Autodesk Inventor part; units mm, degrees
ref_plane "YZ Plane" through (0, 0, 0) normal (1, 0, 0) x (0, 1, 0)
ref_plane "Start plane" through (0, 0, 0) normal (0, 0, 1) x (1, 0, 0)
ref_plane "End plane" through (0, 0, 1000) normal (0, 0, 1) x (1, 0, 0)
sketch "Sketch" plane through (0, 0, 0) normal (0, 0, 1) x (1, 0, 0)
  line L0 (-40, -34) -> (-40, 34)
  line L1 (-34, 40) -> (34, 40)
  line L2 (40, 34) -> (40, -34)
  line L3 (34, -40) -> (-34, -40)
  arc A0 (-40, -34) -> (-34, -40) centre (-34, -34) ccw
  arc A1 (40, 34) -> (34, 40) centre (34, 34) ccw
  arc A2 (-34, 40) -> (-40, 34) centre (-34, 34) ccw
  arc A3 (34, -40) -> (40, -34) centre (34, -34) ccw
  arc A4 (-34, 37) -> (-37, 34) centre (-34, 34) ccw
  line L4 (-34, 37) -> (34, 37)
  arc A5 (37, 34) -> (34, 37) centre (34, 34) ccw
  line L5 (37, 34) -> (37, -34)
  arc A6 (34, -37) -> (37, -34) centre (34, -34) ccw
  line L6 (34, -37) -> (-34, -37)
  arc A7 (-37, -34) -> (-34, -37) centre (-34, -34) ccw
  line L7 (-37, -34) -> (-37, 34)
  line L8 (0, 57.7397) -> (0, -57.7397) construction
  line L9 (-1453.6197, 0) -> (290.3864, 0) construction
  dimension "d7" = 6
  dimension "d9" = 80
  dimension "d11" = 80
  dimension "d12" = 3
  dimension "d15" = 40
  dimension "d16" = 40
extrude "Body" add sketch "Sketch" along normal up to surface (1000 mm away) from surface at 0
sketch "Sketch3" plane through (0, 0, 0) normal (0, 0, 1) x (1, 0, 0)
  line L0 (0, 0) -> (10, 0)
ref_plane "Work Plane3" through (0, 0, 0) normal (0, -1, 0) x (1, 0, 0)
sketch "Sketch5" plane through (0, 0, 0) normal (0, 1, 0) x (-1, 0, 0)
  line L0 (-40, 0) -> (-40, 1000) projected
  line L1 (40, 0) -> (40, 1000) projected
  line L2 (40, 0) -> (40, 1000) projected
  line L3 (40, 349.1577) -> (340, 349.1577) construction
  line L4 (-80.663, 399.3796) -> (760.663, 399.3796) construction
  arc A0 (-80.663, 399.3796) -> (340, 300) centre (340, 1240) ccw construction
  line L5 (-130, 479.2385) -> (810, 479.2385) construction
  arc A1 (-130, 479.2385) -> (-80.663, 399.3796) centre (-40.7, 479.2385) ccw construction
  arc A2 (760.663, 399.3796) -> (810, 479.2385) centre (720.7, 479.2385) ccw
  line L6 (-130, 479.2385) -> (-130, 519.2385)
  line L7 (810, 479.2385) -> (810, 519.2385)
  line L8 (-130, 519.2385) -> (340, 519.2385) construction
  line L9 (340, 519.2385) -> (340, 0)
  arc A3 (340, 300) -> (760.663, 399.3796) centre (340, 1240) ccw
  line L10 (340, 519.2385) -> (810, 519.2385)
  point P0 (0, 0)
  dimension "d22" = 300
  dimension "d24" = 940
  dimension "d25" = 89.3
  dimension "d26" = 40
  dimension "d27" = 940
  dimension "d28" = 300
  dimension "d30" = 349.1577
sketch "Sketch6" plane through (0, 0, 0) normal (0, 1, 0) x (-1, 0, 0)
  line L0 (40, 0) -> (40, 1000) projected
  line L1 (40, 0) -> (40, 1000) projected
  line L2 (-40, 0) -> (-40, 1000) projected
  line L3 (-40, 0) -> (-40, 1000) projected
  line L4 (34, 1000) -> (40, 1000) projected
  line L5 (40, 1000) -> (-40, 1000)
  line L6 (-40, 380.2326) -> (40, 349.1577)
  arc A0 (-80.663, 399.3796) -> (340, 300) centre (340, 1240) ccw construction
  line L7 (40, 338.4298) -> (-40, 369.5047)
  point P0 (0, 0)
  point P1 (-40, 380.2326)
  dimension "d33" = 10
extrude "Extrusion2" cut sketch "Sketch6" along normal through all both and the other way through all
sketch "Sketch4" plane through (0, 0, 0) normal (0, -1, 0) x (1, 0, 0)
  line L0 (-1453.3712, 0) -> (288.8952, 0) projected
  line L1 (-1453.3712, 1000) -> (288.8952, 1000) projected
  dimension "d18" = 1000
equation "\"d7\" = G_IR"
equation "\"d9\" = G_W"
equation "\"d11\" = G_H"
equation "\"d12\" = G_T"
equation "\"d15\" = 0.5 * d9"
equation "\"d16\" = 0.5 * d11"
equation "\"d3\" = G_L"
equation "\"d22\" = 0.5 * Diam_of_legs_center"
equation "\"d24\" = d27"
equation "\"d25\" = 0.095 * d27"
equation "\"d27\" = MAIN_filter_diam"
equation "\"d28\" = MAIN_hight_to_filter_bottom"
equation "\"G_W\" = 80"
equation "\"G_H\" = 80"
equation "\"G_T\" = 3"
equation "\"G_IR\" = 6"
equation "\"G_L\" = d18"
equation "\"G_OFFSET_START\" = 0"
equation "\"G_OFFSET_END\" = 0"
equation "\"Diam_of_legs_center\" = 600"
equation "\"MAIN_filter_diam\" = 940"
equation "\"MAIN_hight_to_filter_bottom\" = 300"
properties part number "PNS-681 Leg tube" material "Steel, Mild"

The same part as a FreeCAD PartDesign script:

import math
import FreeCAD as App
import Part
import Sketcher
from FreeCAD import Vector
Q = App.Units.Quantity


def add_polygon(sketch, points):
    """Adds a closed chain of lines whose ends are joined by coincident constraints."""
    first, n = sketch.GeometryCount, len(points)
    for a, b in zip(points, points[1:] + points[:1]):
        sketch.addGeometry(Part.LineSegment(App.Vector(*a, 0), App.Vector(*b, 0)), False)
    for i in range(n):
        sketch.addConstraint(Sketcher.Constraint("Coincident", first + i, 2, first + (i + 1) % n, 1))

doc = App.newDocument("Part")
body = doc.addObject("PartDesign::Body", "Body")

sketch1 = body.newObject("Sketcher::SketchObject", "Sketch")
sketch1.AttachmentSupport = (doc.getObject("XY_Plane"), [""])
sketch1.MapMode = "FlatFace"
sketch1.addGeometry([
    Part.LineSegment(Vector(-40, 34, 0), Vector(-40, -34, 0)),
    Part.ArcOfCircle(Part.Circle(Vector(-34, -34, 0), Vector(0, 0, 1), 6), math.radians(180), math.radians(270)),
    Part.LineSegment(Vector(-34, -40, 0), Vector(34, -40, 0)),
    Part.ArcOfCircle(Part.Circle(Vector(34, -34, 0), Vector(0, 0, 1), 6), math.radians(-90), math.radians(0)),
    Part.LineSegment(Vector(40, -34, 0), Vector(40, 34, 0)),
    Part.ArcOfCircle(Part.Circle(Vector(34, 34, 0), Vector(0, 0, 1), 6), math.radians(0), math.radians(90)),
    Part.LineSegment(Vector(34, 40, 0), Vector(-34, 40, 0)),
    Part.ArcOfCircle(Part.Circle(Vector(-34, 34, 0), Vector(0, 0, 1), 6), math.radians(90), math.radians(180)),
    Part.ArcOfCircle(Part.Circle(Vector(-34, 34, 0), Vector(0, 0, 1), 3), math.radians(90), math.radians(180)),
    Part.LineSegment(Vector(-34, 37, 0), Vector(34, 37, 0)),
    Part.ArcOfCircle(Part.Circle(Vector(34, 34, 0), Vector(0, 0, 1), 3), math.radians(0), math.radians(90)),
    Part.LineSegment(Vector(37, 34, 0), Vector(37, -34, 0)),
    Part.ArcOfCircle(Part.Circle(Vector(34, -34, 0), Vector(0, 0, 1), 3), math.radians(-90), math.radians(0)),
    Part.LineSegment(Vector(34, -37, 0), Vector(-34, -37, 0)),
    Part.ArcOfCircle(Part.Circle(Vector(-34, -34, 0), Vector(0, 0, 1), 3), math.radians(180), math.radians(270)),
    Part.LineSegment(Vector(-37, -34, 0), Vector(-37, 34, 0)),
], False)
sketch1.addConstraint([
    Sketcher.Constraint("Tangent", 0, 2, 1, 1),
    Sketcher.Constraint("Tangent", 1, 2, 2, 1),
    Sketcher.Constraint("Tangent", 2, 2, 3, 1),
    Sketcher.Constraint("Tangent", 3, 2, 4, 1),
    Sketcher.Constraint("Tangent", 4, 2, 5, 1),
    Sketcher.Constraint("Tangent", 5, 2, 6, 1),
    Sketcher.Constraint("Tangent", 6, 2, 7, 1),
    Sketcher.Constraint("Tangent", 7, 2, 0, 1),
    Sketcher.Constraint("Tangent", 8, 1, 9, 1),
    Sketcher.Constraint("Tangent", 9, 2, 10, 2),
    Sketcher.Constraint("Tangent", 10, 1, 11, 1),
    Sketcher.Constraint("Tangent", 11, 2, 12, 2),
    Sketcher.Constraint("Tangent", 12, 1, 13, 1),
    Sketcher.Constraint("Tangent", 13, 2, 14, 2),
    Sketcher.Constraint("Tangent", 14, 1, 15, 1),
    Sketcher.Constraint("Tangent", 15, 2, 8, 2),
    Sketcher.Constraint("Vertical", 0),
    Sketcher.Constraint("Horizontal", 2),
    Sketcher.Constraint("Vertical", 4),
    Sketcher.Constraint("Horizontal", 6),
    Sketcher.Constraint("Horizontal", 9),
    Sketcher.Constraint("Vertical", 11),
    Sketcher.Constraint("Horizontal", 13),
    Sketcher.Constraint("Vertical", 15),
    Sketcher.Constraint("Coincident", 8, 3, 7, 3),
    Sketcher.Constraint("Coincident", 10, 3, 5, 3),
    Sketcher.Constraint("Coincident", 12, 3, 3, 3),
    Sketcher.Constraint("Equal", 1, 3),
    Sketcher.Constraint("Equal", 3, 5),
    Sketcher.Constraint("Equal", 5, 7),
    Sketcher.Constraint("Equal", 12, 14),
    Sketcher.Constraint("Symmetric", 1, 3, 5, 3, -1, 1),
    Sketcher.Constraint("Equal", 13, 0),
    Sketcher.Constraint("Radius", 1, Q("6 mm")),
    Sketcher.Constraint("Radius", 8, Q("3 mm")),
    Sketcher.Constraint("DistanceX", 0, 2, -1, 1, Q("40 mm")),
])
pad1 = body.newObject("PartDesign::Pad", "Pad")
pad1.Profile = sketch1
pad1.Length = 1000

sketch2 = body.newObject("Sketcher::SketchObject", "Sketch001")
sketch2.AttachmentSupport = (doc.getObject("XZ_Plane"), [""])
sketch2.MapMode = "FlatFace"
add_polygon(sketch2, [(40, 370), (-40, 338), (-40, 1000), (40, 1000)])
sketch2.addConstraint([
    Sketcher.Constraint("Vertical", 1),
    Sketcher.Constraint("Horizontal", 2),
    Sketcher.Constraint("Vertical", 3),
    Sketcher.Constraint("DistanceX", 2, 1, 2, 2, Q("80 mm")),
    Sketcher.Constraint("DistanceX", 0, 2, -1, 1, Q("40 mm")),
    Sketcher.Constraint("DistanceY", -1, 1, 1, 2, Q("1000 mm")),
    Sketcher.Constraint("DistanceY", 1, 1, 1, 2, Q("661.5702 mm")),
    Sketcher.Constraint("DistanceY", 3, 2, 3, 1, Q("630.4953 mm")),
])
pocket1 = body.newObject("PartDesign::Pocket", "Pocket")
pocket1.Profile = sketch2
pocket1.Type = "ThroughAll"
pocket1.Midplane = True

doc.recompute()
